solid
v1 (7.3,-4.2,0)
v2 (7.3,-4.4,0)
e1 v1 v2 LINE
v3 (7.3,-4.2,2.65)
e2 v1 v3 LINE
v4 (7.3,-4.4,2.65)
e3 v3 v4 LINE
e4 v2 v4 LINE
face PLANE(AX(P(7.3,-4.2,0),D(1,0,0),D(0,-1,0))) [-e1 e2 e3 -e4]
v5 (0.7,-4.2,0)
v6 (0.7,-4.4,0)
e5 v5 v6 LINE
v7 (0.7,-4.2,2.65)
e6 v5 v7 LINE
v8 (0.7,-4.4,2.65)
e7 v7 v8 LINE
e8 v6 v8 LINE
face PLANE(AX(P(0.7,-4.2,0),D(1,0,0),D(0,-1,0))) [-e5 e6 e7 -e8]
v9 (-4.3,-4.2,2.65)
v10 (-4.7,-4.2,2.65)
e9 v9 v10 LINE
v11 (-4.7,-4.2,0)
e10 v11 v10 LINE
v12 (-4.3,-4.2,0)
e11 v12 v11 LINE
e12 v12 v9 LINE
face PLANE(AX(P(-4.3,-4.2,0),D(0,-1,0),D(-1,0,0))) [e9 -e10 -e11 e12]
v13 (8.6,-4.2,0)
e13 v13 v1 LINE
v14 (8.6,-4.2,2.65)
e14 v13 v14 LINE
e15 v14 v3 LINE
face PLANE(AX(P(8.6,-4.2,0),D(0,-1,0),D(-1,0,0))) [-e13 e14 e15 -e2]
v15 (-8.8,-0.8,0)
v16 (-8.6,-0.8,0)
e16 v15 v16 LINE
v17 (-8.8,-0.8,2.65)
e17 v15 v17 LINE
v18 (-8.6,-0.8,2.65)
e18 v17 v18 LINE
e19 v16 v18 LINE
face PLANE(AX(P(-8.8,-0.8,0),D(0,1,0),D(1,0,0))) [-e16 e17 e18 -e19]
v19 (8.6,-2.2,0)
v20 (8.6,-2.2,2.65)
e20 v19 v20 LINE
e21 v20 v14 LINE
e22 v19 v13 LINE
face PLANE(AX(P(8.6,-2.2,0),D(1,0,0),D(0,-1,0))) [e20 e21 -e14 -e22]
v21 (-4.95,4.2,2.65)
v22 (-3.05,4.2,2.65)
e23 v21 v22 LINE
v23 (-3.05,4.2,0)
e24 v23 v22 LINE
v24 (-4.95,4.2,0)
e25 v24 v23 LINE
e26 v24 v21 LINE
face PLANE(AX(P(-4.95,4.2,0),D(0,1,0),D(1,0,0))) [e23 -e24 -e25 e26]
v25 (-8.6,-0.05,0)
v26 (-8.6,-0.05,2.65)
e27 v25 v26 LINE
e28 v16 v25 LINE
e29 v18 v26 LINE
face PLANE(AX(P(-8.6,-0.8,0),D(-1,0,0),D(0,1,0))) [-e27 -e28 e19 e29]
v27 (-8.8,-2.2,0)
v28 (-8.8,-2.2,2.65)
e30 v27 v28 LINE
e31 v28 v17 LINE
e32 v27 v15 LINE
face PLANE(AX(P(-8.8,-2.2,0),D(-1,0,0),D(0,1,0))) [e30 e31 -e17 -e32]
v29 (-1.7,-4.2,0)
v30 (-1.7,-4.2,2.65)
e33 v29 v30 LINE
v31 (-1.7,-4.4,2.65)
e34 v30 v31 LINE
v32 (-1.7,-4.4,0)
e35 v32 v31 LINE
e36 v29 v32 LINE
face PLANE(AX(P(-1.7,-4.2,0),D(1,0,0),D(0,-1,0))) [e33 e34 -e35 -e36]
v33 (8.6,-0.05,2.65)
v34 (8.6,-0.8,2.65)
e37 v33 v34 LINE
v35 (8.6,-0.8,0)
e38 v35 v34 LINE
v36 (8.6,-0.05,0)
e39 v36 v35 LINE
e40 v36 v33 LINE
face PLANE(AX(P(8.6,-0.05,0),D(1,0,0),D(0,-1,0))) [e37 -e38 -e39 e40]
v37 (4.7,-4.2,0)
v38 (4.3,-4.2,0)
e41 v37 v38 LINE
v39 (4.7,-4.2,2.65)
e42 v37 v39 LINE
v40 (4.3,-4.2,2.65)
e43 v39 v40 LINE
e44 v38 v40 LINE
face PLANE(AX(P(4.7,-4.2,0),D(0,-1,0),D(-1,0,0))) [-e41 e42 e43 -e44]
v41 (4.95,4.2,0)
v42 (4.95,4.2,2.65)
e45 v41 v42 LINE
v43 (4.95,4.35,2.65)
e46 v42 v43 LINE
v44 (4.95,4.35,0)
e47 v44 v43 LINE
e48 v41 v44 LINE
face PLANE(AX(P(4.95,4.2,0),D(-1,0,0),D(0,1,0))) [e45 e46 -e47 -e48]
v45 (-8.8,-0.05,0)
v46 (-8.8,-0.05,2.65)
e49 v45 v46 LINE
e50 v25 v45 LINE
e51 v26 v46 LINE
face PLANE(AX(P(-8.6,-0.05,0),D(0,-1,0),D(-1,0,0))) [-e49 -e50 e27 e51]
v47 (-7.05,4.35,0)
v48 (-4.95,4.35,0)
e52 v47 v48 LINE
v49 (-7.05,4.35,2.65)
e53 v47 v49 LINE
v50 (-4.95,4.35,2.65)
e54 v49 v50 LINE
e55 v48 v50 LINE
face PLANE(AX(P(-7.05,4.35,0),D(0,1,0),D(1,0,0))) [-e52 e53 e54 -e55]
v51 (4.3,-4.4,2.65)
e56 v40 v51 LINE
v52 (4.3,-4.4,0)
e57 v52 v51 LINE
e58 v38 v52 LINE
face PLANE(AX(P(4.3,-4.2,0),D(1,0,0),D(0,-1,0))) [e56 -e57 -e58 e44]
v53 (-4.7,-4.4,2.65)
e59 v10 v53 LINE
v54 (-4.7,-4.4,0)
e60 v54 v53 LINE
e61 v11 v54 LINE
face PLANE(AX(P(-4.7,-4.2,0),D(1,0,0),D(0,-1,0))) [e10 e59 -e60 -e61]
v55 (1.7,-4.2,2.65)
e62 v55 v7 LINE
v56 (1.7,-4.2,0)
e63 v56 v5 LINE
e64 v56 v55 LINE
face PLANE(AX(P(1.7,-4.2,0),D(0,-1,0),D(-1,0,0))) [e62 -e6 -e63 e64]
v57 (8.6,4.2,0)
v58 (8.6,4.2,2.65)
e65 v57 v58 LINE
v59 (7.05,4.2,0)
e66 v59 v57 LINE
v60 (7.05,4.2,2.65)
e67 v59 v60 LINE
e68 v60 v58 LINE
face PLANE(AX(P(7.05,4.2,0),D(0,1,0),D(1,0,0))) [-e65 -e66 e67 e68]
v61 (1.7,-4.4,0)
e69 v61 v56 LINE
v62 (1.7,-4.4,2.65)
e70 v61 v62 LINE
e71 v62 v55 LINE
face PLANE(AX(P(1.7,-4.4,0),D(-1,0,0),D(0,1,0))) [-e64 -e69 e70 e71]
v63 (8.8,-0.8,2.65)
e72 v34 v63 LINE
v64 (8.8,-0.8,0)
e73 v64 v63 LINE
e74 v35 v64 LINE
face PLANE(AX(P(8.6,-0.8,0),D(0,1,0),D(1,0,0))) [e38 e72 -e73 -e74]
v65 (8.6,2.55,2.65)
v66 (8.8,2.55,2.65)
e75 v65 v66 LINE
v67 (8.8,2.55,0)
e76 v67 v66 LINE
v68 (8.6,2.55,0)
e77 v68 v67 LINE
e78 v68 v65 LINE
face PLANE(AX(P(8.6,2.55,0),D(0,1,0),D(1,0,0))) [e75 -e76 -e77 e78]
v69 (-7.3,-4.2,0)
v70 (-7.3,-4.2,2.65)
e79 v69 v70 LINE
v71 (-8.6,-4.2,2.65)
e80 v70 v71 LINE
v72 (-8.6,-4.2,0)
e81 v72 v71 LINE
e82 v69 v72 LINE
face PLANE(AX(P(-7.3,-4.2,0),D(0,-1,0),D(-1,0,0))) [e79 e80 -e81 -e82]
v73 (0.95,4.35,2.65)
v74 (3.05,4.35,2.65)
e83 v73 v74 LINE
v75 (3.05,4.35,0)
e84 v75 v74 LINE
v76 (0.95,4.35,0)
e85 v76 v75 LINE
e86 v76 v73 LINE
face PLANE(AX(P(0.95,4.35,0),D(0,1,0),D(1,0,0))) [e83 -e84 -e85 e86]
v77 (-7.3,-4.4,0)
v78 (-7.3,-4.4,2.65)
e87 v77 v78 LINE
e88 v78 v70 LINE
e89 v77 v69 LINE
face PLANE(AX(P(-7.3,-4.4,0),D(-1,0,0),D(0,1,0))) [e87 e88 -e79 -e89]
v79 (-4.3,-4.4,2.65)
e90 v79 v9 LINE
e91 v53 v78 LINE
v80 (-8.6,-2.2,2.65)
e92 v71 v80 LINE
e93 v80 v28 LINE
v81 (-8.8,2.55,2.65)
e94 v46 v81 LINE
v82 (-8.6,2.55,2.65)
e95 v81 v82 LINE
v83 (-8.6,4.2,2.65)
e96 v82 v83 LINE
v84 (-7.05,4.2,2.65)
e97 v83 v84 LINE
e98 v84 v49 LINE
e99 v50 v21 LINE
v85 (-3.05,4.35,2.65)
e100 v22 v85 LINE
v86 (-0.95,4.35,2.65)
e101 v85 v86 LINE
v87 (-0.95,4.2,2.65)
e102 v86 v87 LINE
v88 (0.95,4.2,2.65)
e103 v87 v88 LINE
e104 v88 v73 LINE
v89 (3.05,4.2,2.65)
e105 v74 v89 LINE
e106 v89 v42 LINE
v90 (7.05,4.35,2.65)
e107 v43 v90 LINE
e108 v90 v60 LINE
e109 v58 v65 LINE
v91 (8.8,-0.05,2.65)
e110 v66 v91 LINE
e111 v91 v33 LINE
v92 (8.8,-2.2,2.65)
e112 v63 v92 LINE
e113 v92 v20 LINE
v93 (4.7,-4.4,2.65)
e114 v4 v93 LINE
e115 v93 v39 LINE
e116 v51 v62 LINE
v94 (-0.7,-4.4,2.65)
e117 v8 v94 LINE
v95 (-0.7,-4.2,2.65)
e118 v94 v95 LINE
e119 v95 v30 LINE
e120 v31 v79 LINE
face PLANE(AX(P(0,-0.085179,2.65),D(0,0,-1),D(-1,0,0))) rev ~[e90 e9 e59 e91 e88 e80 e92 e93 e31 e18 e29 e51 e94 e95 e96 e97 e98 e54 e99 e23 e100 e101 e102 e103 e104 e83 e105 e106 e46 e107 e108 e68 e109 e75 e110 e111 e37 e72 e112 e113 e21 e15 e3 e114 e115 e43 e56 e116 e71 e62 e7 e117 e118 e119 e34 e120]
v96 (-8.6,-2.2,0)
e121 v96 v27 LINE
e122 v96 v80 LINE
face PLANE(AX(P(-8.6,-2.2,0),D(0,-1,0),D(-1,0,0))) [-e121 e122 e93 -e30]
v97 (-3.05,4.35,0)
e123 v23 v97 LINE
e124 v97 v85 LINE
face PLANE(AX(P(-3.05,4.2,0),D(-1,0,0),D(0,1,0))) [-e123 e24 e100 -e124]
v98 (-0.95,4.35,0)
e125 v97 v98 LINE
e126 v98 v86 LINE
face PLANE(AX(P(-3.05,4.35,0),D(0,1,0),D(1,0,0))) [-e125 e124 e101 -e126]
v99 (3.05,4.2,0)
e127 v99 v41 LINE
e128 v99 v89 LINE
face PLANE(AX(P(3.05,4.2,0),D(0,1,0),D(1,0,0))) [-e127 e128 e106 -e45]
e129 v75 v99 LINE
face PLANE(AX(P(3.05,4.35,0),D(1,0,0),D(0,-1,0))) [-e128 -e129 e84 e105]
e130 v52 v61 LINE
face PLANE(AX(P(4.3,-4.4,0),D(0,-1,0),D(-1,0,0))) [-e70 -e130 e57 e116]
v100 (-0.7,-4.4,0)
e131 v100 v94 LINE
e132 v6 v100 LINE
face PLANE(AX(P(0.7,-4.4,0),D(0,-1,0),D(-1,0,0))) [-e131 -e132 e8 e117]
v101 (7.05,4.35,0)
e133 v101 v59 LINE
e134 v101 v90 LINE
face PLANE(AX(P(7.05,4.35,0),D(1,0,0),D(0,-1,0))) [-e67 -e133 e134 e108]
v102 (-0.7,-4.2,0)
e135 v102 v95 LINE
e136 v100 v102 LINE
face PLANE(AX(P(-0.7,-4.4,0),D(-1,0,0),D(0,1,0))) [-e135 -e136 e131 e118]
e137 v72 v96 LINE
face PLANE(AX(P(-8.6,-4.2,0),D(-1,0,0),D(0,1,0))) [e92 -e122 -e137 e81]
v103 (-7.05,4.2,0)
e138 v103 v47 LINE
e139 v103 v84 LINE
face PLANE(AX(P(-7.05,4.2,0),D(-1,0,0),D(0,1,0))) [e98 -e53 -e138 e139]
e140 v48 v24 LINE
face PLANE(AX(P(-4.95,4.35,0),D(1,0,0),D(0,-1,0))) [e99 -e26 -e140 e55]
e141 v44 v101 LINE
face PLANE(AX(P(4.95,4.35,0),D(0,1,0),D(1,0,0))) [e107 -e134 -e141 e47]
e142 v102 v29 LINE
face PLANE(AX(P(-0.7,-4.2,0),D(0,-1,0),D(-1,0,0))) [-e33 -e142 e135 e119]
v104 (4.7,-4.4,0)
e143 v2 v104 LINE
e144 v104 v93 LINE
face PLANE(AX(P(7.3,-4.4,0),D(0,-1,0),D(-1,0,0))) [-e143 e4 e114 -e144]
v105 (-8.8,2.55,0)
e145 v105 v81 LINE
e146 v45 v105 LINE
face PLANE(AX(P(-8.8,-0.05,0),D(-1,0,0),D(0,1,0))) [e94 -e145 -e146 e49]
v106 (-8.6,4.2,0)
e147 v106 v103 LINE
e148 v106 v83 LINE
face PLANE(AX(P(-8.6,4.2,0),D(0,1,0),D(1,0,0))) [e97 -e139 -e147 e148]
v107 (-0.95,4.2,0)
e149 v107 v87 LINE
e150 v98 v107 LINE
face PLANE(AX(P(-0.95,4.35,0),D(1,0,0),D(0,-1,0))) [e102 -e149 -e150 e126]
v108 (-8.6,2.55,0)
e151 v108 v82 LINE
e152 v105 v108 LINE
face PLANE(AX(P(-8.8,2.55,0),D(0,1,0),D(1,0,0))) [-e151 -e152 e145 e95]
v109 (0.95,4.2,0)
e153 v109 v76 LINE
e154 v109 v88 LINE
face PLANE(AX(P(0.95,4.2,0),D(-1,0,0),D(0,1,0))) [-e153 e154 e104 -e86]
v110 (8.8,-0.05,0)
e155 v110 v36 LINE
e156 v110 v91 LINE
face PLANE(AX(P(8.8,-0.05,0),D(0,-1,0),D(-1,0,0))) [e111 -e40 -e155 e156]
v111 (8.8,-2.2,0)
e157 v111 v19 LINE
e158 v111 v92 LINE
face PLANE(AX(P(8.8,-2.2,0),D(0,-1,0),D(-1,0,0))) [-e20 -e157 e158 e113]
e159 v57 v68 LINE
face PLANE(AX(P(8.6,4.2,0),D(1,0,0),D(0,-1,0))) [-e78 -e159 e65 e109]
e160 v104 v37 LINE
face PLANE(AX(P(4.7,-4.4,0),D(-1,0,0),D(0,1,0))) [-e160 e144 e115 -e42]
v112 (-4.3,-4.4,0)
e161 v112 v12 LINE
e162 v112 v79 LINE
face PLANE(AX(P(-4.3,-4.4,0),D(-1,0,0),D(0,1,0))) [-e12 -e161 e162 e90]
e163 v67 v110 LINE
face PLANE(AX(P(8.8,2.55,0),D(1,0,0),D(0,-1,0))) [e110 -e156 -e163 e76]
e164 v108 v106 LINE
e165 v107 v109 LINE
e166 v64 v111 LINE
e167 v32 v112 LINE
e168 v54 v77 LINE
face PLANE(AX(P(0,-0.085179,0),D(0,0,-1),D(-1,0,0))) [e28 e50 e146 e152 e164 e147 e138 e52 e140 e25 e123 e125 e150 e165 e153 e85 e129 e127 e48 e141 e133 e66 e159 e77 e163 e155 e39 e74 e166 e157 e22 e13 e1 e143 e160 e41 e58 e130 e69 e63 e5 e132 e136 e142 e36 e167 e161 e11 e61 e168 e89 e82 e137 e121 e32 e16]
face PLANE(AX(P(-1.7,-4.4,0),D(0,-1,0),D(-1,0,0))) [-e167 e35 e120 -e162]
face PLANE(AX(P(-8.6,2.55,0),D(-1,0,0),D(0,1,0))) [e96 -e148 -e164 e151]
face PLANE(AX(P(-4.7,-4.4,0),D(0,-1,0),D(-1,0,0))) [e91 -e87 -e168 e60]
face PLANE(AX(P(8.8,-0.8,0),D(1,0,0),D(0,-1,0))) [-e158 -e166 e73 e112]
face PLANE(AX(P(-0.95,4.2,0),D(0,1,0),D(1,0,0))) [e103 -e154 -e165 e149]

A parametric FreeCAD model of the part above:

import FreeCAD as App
import Part
import Sketcher

V = App.Vector
Q = App.Units.Quantity


def add_polygon(sketch, points):
    """Adds a closed chain of lines whose ends are joined by coincident constraints."""
    first, n = sketch.GeometryCount, len(points)
    for a, b in zip(points, points[1:] + points[:1]):
        sketch.addGeometry(Part.LineSegment(App.Vector(*a, 0), App.Vector(*b, 0)), False)
    for i in range(n):
        sketch.addConstraint(Sketcher.Constraint("Coincident", first + i, 2, first + (i + 1) % n, 1))

doc = App.newDocument("Part")
body = doc.addObject("PartDesign::Body", "Body")

sketch1 = doc.addObject("Sketcher::SketchObject", "Sketch")
body.addObject(sketch1)
sketch1.AttachmentSupport = (doc.XY_Plane, [""])
sketch1.MapMode = "FlatFace"
add_polygon(sketch1, [(7.05, 4.2), (7.05, 4.35), (4.95, 4.35), (4.95, 4.2), (3.05, 4.2), (3.05, 4.35), (0.95, 4.35), (0.95, 4.2), (-0.95, 4.2), (-0.95, 4.35), (-3.05, 4.35), (-3.05, 4.2), (-4.95, 4.2), (-4.95, 4.35), (-7.05, 4.35), (-7.05, 4.2), (-8.6, 4.2), (-8.6, 2.55), (-8.8, 2.55), (-8.8, -0.05), (-8.6, -0.05), (-8.6, -0.8), (-8.8, -0.8), (-8.8, -2.2), (-8.6, -2.2), (-8.6, -4.2), (-7.3, -4.2), (-7.3, -4.4), (-4.7, -4.4), (-4.7, -4.2), (-4.3, -4.2), (-4.3, -4.4), (-1.7, -4.4), (-1.7, -4.2), (-0.7, -4.2), (-0.7, -4.4), (0.7, -4.4), (0.7, -4.2), (1.7, -4.2), (1.7, -4.4), (4.3, -4.4), (4.3, -4.2), (4.7, -4.2), (4.7, -4.4), (7.3, -4.4), (7.3, -4.2), (8.6, -4.2), (8.6, -2.2), (8.8, -2.2), (8.8, -0.8), (8.6, -0.8), (8.6, -0.05), (8.8, -0.05), (8.8, 2.55), (8.6, 2.55), (8.6, 4.2)])
sketch1.addConstraint(Sketcher.Constraint("Vertical", 0))
sketch1.addConstraint(Sketcher.Constraint("Horizontal", 1))
sketch1.addConstraint(Sketcher.Constraint("Vertical", 2))
sketch1.addConstraint(Sketcher.Constraint("Horizontal", 3))
sketch1.addConstraint(Sketcher.Constraint("Vertical", 4))
sketch1.addConstraint(Sketcher.Constraint("Horizontal", 5))
sketch1.addConstraint(Sketcher.Constraint("Vertical", 6))
sketch1.addConstraint(Sketcher.Constraint("Horizontal", 7))
sketch1.addConstraint(Sketcher.Constraint("Vertical", 8))
sketch1.addConstraint(Sketcher.Constraint("Horizontal", 9))
sketch1.addConstraint(Sketcher.Constraint("Vertical", 10))
sketch1.addConstraint(Sketcher.Constraint("Horizontal", 11))
sketch1.addConstraint(Sketcher.Constraint("Vertical", 12))
sketch1.addConstraint(Sketcher.Constraint("Horizontal", 13))
sketch1.addConstraint(Sketcher.Constraint("Vertical", 14))
sketch1.addConstraint(Sketcher.Constraint("Horizontal", 15))
sketch1.addConstraint(Sketcher.Constraint("Vertical", 16))
sketch1.addConstraint(Sketcher.Constraint("Horizontal", 17))
sketch1.addConstraint(Sketcher.Constraint("Vertical", 18))
sketch1.addConstraint(Sketcher.Constraint("Horizontal", 19))
sketch1.addConstraint(Sketcher.Constraint("Vertical", 20))
sketch1.addConstraint(Sketcher.Constraint("Horizontal", 21))
sketch1.addConstraint(Sketcher.Constraint("Vertical", 22))
sketch1.addConstraint(Sketcher.Constraint("Horizontal", 23))
sketch1.addConstraint(Sketcher.Constraint("Vertical", 24))
sketch1.addConstraint(Sketcher.Constraint("Horizontal", 25))
sketch1.addConstraint(Sketcher.Constraint("Vertical", 26))
sketch1.addConstraint(Sketcher.Constraint("Horizontal", 27))
sketch1.addConstraint(Sketcher.Constraint("Vertical", 28))
sketch1.addConstraint(Sketcher.Constraint("Horizontal", 29))
sketch1.addConstraint(Sketcher.Constraint("Vertical", 30))
sketch1.addConstraint(Sketcher.Constraint("Horizontal", 31))
sketch1.addConstraint(Sketcher.Constraint("Vertical", 32))
sketch1.addConstraint(Sketcher.Constraint("Horizontal", 33))
sketch1.addConstraint(Sketcher.Constraint("Vertical", 34))
sketch1.addConstraint(Sketcher.Constraint("Horizontal", 35))
sketch1.addConstraint(Sketcher.Constraint("Vertical", 36))
sketch1.addConstraint(Sketcher.Constraint("Horizontal", 37))
sketch1.addConstraint(Sketcher.Constraint("Vertical", 38))
sketch1.addConstraint(Sketcher.Constraint("Horizontal", 39))
sketch1.addConstraint(Sketcher.Constraint("Vertical", 40))
sketch1.addConstraint(Sketcher.Constraint("Horizontal", 41))
sketch1.addConstraint(Sketcher.Constraint("Vertical", 42))
sketch1.addConstraint(Sketcher.Constraint("Horizontal", 43))
sketch1.addConstraint(Sketcher.Constraint("Vertical", 44))
sketch1.addConstraint(Sketcher.Constraint("Horizontal", 45))
sketch1.addConstraint(Sketcher.Constraint("Vertical", 46))
sketch1.addConstraint(Sketcher.Constraint("Horizontal", 47))
sketch1.addConstraint(Sketcher.Constraint("Vertical", 48))
sketch1.addConstraint(Sketcher.Constraint("Horizontal", 49))
sketch1.addConstraint(Sketcher.Constraint("Vertical", 50))
sketch1.addConstraint(Sketcher.Constraint("Horizontal", 51))
sketch1.addConstraint(Sketcher.Constraint("Vertical", 52))
sketch1.addConstraint(Sketcher.Constraint("Horizontal", 53))
sketch1.addConstraint(Sketcher.Constraint("Vertical", 54))
sketch1.addConstraint(Sketcher.Constraint("Horizontal", 55))
sketch1.addConstraint(Sketcher.Constraint("Symmetric", 15, 2, 45, 2, -1, 1))
sketch1.addConstraint(Sketcher.Constraint("Symmetric", 24, 2, 54, 2, -1, 1))
sketch1.addConstraint(Sketcher.Constraint("Symmetric", 5, 2, 8, 2, -2))
sketch1.addConstraint(Sketcher.Constraint("Symmetric", 3, 2, 10, 2, -2))
sketch1.addConstraint(Sketcher.Constraint("Symmetric", 1, 2, 12, 2, -2))
sketch1.addConstraint(Sketcher.Constraint("Symmetric", 33, 2, 36, 2, -2))
sketch1.addConstraint(Sketcher.Constraint("Symmetric", 31, 2, 38, 2, -2))
sketch1.addConstraint(Sketcher.Constraint("Symmetric", 29, 2, 40, 2, -2))
sketch1.addConstraint(Sketcher.Constraint("Symmetric", 27, 2, 42, 2, -2))
sketch1.addConstraint(Sketcher.Constraint("Symmetric", 25, 2, 44, 2, -2))
sketch1.addConstraint(Sketcher.Constraint("Symmetric", 23, 2, 46, 2, -2))
sketch1.addConstraint(Sketcher.Constraint("Symmetric", 21, 2, 48, 2, -2))
sketch1.addConstraint(Sketcher.Constraint("Symmetric", 19, 2, 50, 2, -2))
sketch1.addConstraint(Sketcher.Constraint("Symmetric", 17, 2, 52, 2, -2))
sketch1.addConstraint(Sketcher.Constraint("Horizontal", 1, 2, 4, 2))
sketch1.addConstraint(Sketcher.Constraint("Horizontal", 3, 2, 6, 2))
sketch1.addConstraint(Sketcher.Constraint("Horizontal", 11, 2, 14, 2))
sketch1.addConstraint(Sketcher.Constraint("Horizontal", 25, 2, 28, 2))
sketch1.addConstraint(Sketcher.Constraint("Horizontal", 27, 2, 30, 2))
sketch1.addConstraint(Sketcher.Constraint("Horizontal", 29, 2, 32, 2))
sketch1.addConstraint(Sketcher.Constraint("Horizontal", 31, 2, 34, 2))
sketch1.addConstraint(Sketcher.Constraint("Vertical", 16, 2, 19, 2))
sketch1.addConstraint(Sketcher.Constraint("Vertical", 18, 2, 21, 2))
sketch1.addConstraint(Sketcher.Constraint("Equal", 1, 5))
sketch1.addConstraint(Sketcher.Constraint("Equal", 3, 7))
sketch1.addConstraint(Sketcher.Constraint("Equal", 9, 13))
sketch1.addConstraint(Sketcher.Constraint("Equal", 27, 31))
sketch1.addConstraint(Sketcher.Constraint("Equal", 43, 18))
sketch1.addConstraint(Sketcher.Constraint("Equal", 35, 22))
sketch1.addConstraint(Sketcher.Constraint("Equal", 53, 26))
sketch1.addConstraint(Sketcher.Constraint("DistanceX", 33, 1, 33, 2, Q("1 mm")))
sketch1.addConstraint(Sketcher.Constraint("DistanceY", 24, 2, 24, 1, Q("2 mm")))
sketch1.addConstraint(Sketcher.Constraint("DistanceX", 1, 2, 1, 1, Q("2.1 mm")))
sketch1.addConstraint(Sketcher.Constraint("DistanceX", 3, 2, 3, 1, Q("1.9 mm")))
sketch1.addConstraint(Sketcher.Constraint("DistanceX", 17, 2, 17, 1, Q("0.2 mm")))
sketch1.addConstraint(Sketcher.Constraint("DistanceX", 25, 1, 25, 2, Q("1.3 mm")))
sketch1.addConstraint(Sketcher.Constraint("DistanceX", 27, 1, 27, 2, Q("2.6 mm")))
sketch1.addConstraint(Sketcher.Constraint("DistanceX", 29, 1, 29, 2, Q("0.4 mm")))
sketch1.addConstraint(Sketcher.Constraint("DistanceX", 35, 1, 35, 2, Q("1.4 mm")))
sketch1.addConstraint(Sketcher.Constraint("DistanceY", 20, 2, 15, 2, Q("5 mm")))
sketch1.addConstraint(Sketcher.Constraint("DistanceY", 0, 1, 0, 2, Q("0.15 mm")))
sketch1.addConstraint(Sketcher.Constraint("DistanceY", 16, 2, 16, 1, Q("1.65 mm")))
pad1 = doc.addObject("PartDesign::Pad", "Pad")
body.addObject(pad1)
pad1.Profile = sketch1
pad1.Length = 2.65

doc.recompute()
